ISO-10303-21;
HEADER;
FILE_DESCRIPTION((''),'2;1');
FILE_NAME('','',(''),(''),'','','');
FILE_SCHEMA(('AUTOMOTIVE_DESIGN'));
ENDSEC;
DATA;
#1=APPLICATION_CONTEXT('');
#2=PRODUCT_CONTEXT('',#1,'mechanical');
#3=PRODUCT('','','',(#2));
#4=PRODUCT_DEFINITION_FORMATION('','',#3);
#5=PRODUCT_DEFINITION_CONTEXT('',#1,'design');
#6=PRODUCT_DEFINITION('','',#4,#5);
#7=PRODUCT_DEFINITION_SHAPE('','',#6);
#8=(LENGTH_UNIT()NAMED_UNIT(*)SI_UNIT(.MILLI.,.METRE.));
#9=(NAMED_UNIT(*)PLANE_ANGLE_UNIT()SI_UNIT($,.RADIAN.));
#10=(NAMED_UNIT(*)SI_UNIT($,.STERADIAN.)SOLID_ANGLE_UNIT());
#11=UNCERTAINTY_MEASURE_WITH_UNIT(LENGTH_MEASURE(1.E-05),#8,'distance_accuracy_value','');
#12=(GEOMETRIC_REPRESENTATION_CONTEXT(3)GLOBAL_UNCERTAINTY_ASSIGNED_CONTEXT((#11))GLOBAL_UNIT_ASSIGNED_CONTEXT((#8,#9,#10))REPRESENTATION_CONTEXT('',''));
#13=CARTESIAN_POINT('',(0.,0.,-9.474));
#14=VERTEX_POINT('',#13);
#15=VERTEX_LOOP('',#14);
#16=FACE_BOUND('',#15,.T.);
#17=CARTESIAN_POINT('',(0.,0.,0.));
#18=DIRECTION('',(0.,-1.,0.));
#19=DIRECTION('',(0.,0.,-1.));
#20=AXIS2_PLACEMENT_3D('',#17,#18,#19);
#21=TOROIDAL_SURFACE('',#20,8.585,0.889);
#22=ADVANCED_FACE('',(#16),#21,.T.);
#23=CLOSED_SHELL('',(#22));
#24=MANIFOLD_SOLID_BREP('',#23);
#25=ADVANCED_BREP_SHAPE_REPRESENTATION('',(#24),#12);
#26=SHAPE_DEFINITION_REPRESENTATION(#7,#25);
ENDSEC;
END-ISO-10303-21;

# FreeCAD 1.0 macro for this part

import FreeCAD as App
import Part
import Sketcher

V = App.Vector
Q = App.Units.Quantity

doc = App.newDocument("Part")
params = doc.addObject("Spreadsheet::Sheet", "Params")
for row, (alias, value) in enumerate([
    ("sketch1_diameter", "0.07 in"),
    ("revolution_angle", "360 deg"),
], start=1):
    params.set(f"A{row}", alias)
    params.set(f"B{row}", "=" + value)
    params.setAlias(f"B{row}", alias)

body = doc.addObject("PartDesign::Body", "Body")

# Sketch on XY plane
sketch1 = body.newObject("Sketcher::SketchObject", "Sketch")
sketch1.AttachmentSupport = (doc.getObject("XY_Plane"), [""])
sketch1.MapMode = "FlatFace"
sketch1.addGeometry(Part.Circle(V(-8.6, 0, 0), V(0, 0, 1), 0.9), False)
sketch1.addConstraint(Sketcher.Constraint("PointOnObject", 0, 3, -1))
sketch1.addConstraint(Sketcher.Constraint("Diameter", 0, Q("0.07 in")))
sketch1.addConstraint(Sketcher.Constraint("DistanceX", 0, 3, -1, 1, Q("8.585 mm")))
sketch1.setExpression("Constraints[1]", "Params.sketch1_diameter")
revolution = body.newObject("PartDesign::Revolution", "Revolution")
revolution.Profile = sketch1
revolution.ReferenceAxis = (sketch1, ["V_Axis"])
revolution.setExpression("Angle", "Params.revolution_angle")

doc.recompute()
